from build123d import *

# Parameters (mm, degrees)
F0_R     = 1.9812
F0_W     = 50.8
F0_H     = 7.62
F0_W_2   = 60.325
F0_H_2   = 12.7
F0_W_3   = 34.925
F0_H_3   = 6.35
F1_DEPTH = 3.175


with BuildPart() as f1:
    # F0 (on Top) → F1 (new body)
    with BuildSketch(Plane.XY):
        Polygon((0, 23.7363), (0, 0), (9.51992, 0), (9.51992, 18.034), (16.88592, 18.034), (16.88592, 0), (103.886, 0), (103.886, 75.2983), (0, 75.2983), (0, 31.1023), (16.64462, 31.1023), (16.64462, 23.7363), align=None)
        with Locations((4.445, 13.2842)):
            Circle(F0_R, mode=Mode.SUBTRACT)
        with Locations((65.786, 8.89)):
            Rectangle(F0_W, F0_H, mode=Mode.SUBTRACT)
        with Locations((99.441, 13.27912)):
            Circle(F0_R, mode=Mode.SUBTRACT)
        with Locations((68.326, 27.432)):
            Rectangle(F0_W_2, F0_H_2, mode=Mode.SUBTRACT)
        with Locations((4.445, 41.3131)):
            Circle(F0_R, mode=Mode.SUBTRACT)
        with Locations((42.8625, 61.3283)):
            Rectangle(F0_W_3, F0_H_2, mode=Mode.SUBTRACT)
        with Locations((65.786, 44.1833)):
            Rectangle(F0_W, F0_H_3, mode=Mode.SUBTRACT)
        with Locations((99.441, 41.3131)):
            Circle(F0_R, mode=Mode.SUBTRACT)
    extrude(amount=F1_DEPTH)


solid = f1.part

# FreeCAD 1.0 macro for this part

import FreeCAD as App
import Part
import Sketcher
Q = App.Units.Quantity

doc = App.newDocument("Part")
body = doc.addObject("PartDesign::Body", "Body")

# Sketch on XY plane
sketch1 = body.newObject("Sketcher::SketchObject", "Sketch")
sketch1.AttachmentSupport = (doc.getObject("XY_Plane"), [""])
sketch1.MapMode = "FlatFace"
sketch1.addGeometry(Part.LineSegment(App.Vector(0, 23.7, 0), App.Vector(0, 0, 0)), False)
sketch1.addGeometry(Part.LineSegment(App.Vector(0, 0, 0), App.Vector(9.5, 0, 0)), False)
sketch1.addGeometry(Part.LineSegment(App.Vector(9.5, 0, 0), App.Vector(9.5, 18, 0)), False)
sketch1.addGeometry(Part.LineSegment(App.Vector(9.5, 18, 0), App.Vector(16.9, 18, 0)), False)
sketch1.addGeometry(Part.LineSegment(App.Vector(16.9, 18, 0), App.Vector(16.9, 0, 0)), False)
sketch1.addGeometry(Part.LineSegment(App.Vector(16.9, 0, 0), App.Vector(103.9, 0, 0)), False)
sketch1.addGeometry(Part.LineSegment(App.Vector(103.9, 0, 0), App.Vector(103.9, 75.3, 0)), False)
sketch1.addGeometry(Part.LineSegment(App.Vector(103.9, 75.3, 0), App.Vector(0, 75.3, 0)), False)
sketch1.addGeometry(Part.LineSegment(App.Vector(0, 75.3, 0), App.Vector(0, 31.1, 0)), False)
sketch1.addGeometry(Part.LineSegment(App.Vector(0, 31.1, 0), App.Vector(16.6, 31.1, 0)), False)
sketch1.addGeometry(Part.LineSegment(App.Vector(16.6, 31.1, 0), App.Vector(16.6, 23.7, 0)), False)
sketch1.addGeometry(Part.LineSegment(App.Vector(16.6, 23.7, 0), App.Vector(0, 23.7, 0)), False)
sketch1.addGeometry(Part.Circle(App.Vector(4.4, 13.3, 0), App.Vector(0, 0, 1), 2), False)
sketch1.addGeometry(Part.LineSegment(App.Vector(91.2, 5.1, 0), App.Vector(40.4, 5.1, 0)), False)
sketch1.addGeometry(Part.LineSegment(App.Vector(40.4, 5.1, 0), App.Vector(40.4, 12.7, 0)), False)
sketch1.addGeometry(Part.LineSegment(App.Vector(40.4, 12.7, 0), App.Vector(91.2, 12.7, 0)), False)
sketch1.addGeometry(Part.LineSegment(App.Vector(91.2, 12.7, 0), App.Vector(91.2, 5.1, 0)), False)
sketch1.addGeometry(Part.Circle(App.Vector(99.4, 13.3, 0), App.Vector(0, 0, 1), 2), False)
sketch1.addGeometry(Part.LineSegment(App.Vector(98.5, 21.1, 0), App.Vector(38.2, 21.1, 0)), False)
sketch1.addGeometry(Part.LineSegment(App.Vector(38.2, 21.1, 0), App.Vector(38.2, 33.8, 0)), False)
sketch1.addGeometry(Part.LineSegment(App.Vector(38.2, 33.8, 0), App.Vector(98.5, 33.8, 0)), False)
sketch1.addGeometry(Part.LineSegment(App.Vector(98.5, 33.8, 0), App.Vector(98.5, 21.1, 0)), False)
sketch1.addGeometry(Part.Circle(App.Vector(4.4, 41.3, 0), App.Vector(0, 0, 1), 2), False)
sketch1.addGeometry(Part.LineSegment(App.Vector(60.3, 55, 0), App.Vector(25.4, 55, 0)), False)
sketch1.addGeometry(Part.LineSegment(App.Vector(25.4, 55, 0), App.Vector(25.4, 67.7, 0)), False)
sketch1.addGeometry(Part.LineSegment(App.Vector(25.4, 67.7, 0), App.Vector(60.3, 67.7, 0)), False)
sketch1.addGeometry(Part.LineSegment(App.Vector(60.3, 67.7, 0), App.Vector(60.3, 55, 0)), False)
sketch1.addGeometry(Part.LineSegment(App.Vector(91.2, 41, 0), App.Vector(40.4, 41, 0)), False)
sketch1.addGeometry(Part.LineSegment(App.Vector(40.4, 41, 0), App.Vector(40.4, 47.4, 0)), False)
sketch1.addGeometry(Part.LineSegment(App.Vector(40.4, 47.4, 0), App.Vector(91.2, 47.4, 0)), False)
sketch1.addGeometry(Part.LineSegment(App.Vector(91.2, 47.4, 0), App.Vector(91.2, 41, 0)), False)
sketch1.addGeometry(Part.Circle(App.Vector(99.4, 41.3, 0), App.Vector(0, 0, 1), 2), False)
sketch1.addConstraint(Sketcher.Constraint("Coincident", 0, 2, 1, 1))
sketch1.addConstraint(Sketcher.Constraint("Coincident", 1, 2, 2, 1))
sketch1.addConstraint(Sketcher.Constraint("Coincident", 2, 2, 3, 1))
sketch1.addConstraint(Sketcher.Constraint("Coincident", 3, 2, 4, 1))
sketch1.addConstraint(Sketcher.Constraint("Coincident", 4, 2, 5, 1))
sketch1.addConstraint(Sketcher.Constraint("Coincident", 5, 2, 6, 1))
sketch1.addConstraint(Sketcher.Constraint("Coincident", 6, 2, 7, 1))
sketch1.addConstraint(Sketcher.Constraint("Coincident", 7, 2, 8, 1))
sketch1.addConstraint(Sketcher.Constraint("Coincident", 8, 2, 9, 1))
sketch1.addConstraint(Sketcher.Constraint("Coincident", 9, 2, 10, 1))
sketch1.addConstraint(Sketcher.Constraint("Coincident", 10, 2, 11, 1))
sketch1.addConstraint(Sketcher.Constraint("Coincident", 11, 2, 0, 1))
sketch1.addConstraint(Sketcher.Constraint("Coincident", 13, 2, 14, 1))
sketch1.addConstraint(Sketcher.Constraint("Coincident", 14, 2, 15, 1))
sketch1.addConstraint(Sketcher.Constraint("Coincident", 15, 2, 16, 1))
sketch1.addConstraint(Sketcher.Constraint("Coincident", 16, 2, 13, 1))
sketch1.addConstraint(Sketcher.Constraint("Coincident", 18, 2, 19, 1))
sketch1.addConstraint(Sketcher.Constraint("Coincident", 19, 2, 20, 1))
sketch1.addConstraint(Sketcher.Constraint("Coincident", 20, 2, 21, 1))
sketch1.addConstraint(Sketcher.Constraint("Coincident", 21, 2, 18, 1))
sketch1.addConstraint(Sketcher.Constraint("Coincident", 23, 2, 24, 1))
sketch1.addConstraint(Sketcher.Constraint("Coincident", 24, 2, 25, 1))
sketch1.addConstraint(Sketcher.Constraint("Coincident", 25, 2, 26, 1))
sketch1.addConstraint(Sketcher.Constraint("Coincident", 26, 2, 23, 1))
sketch1.addConstraint(Sketcher.Constraint("Coincident", 27, 2, 28, 1))
sketch1.addConstraint(Sketcher.Constraint("Coincident", 28, 2, 29, 1))
sketch1.addConstraint(Sketcher.Constraint("Coincident", 29, 2, 30, 1))
sketch1.addConstraint(Sketcher.Constraint("Coincident", 30, 2, 27, 1))
sketch1.addConstraint(Sketcher.Constraint("Vertical", 0))
sketch1.addConstraint(Sketcher.Constraint("Horizontal", 1))
sketch1.addConstraint(Sketcher.Constraint("Vertical", 2))
sketch1.addConstraint(Sketcher.Constraint("Horizontal", 3))
sketch1.addConstraint(Sketcher.Constraint("Vertical", 4))
sketch1.addConstraint(Sketcher.Constraint("Horizontal", 5))
sketch1.addConstraint(Sketcher.Constraint("Vertical", 6))
sketch1.addConstraint(Sketcher.Constraint("Horizontal", 7))
sketch1.addConstraint(Sketcher.Constraint("Vertical", 8))
sketch1.addConstraint(Sketcher.Constraint("Horizontal", 9))
sketch1.addConstraint(Sketcher.Constraint("Vertical", 10))
sketch1.addConstraint(Sketcher.Constraint("Horizontal", 11))
sketch1.addConstraint(Sketcher.Constraint("Horizontal", 13))
sketch1.addConstraint(Sketcher.Constraint("Vertical", 14))
sketch1.addConstraint(Sketcher.Constraint("Horizontal", 15))
sketch1.addConstraint(Sketcher.Constraint("Vertical", 16))
sketch1.addConstraint(Sketcher.Constraint("Horizontal", 18))
sketch1.addConstraint(Sketcher.Constraint("Vertical", 19))
sketch1.addConstraint(Sketcher.Constraint("Horizontal", 20))
sketch1.addConstraint(Sketcher.Constraint("Vertical", 21))
sketch1.addConstraint(Sketcher.Constraint("Horizontal", 23))
sketch1.addConstraint(Sketcher.Constraint("Vertical", 24))
sketch1.addConstraint(Sketcher.Constraint("Horizontal", 25))
sketch1.addConstraint(Sketcher.Constraint("Vertical", 26))
sketch1.addConstraint(Sketcher.Constraint("Horizontal", 27))
sketch1.addConstraint(Sketcher.Constraint("Vertical", 28))
sketch1.addConstraint(Sketcher.Constraint("Horizontal", 29))
sketch1.addConstraint(Sketcher.Constraint("Vertical", 30))
sketch1.addConstraint(Sketcher.Constraint("Coincident", 0, 2, -1, 1))
sketch1.addConstraint(Sketcher.Constraint("Equal", 12, 17))
sketch1.addConstraint(Sketcher.Constraint("Equal", 17, 22))
sketch1.addConstraint(Sketcher.Constraint("Equal", 22, 31))
sketch1.addConstraint(Sketcher.Constraint("PointOnObject", 4, 2, -1))
sketch1.addConstraint(Sketcher.Constraint("PointOnObject", 7, 2, -2))
sketch1.addConstraint(Sketcher.Constraint("Horizontal", 22, 3, 31, 3))
sketch1.addConstraint(Sketcher.Constraint("Vertical", 12, 3, 22, 3))
sketch1.addConstraint(Sketcher.Constraint("Vertical", 17, 3, 31, 3))
sketch1.addConstraint(Sketcher.Constraint("Vertical", 14, 2, 27, 2))
sketch1.addConstraint(Sketcher.Constraint("Vertical", 16, 2, 29, 2))
sketch1.addConstraint(Sketcher.Constraint("Equal", 3, 10))
sketch1.addConstraint(Sketcher.Constraint("Equal", 21, 24))
sketch1.addConstraint(Sketcher.Constraint("DistanceX", 13, 2, 13, 1, Q("2 in")))
sketch1.addConstraint(Sketcher.Constraint("Diameter", 12, Q("0.156 in")))
sketch1.addConstraint(Sketcher.Constraint("DistanceY", 14, 1, 14, 2, Q("0.3 in")))
sketch1.addConstraint(Sketcher.Constraint("DistanceY", 19, 1, 19, 2, Q("0.5 in")))
sketch1.addConstraint(Sketcher.Constraint("DistanceX", -1, 1, 23, 2, Q("1 in")))
sketch1.addConstraint(Sketcher.Constraint("DistanceX", 3, 1, 3, 2, Q("0.29 in")))
sketch1.addConstraint(Sketcher.Constraint("DistanceX", 7, 2, 7, 1, Q("4.09 in")))
sketch1.addConstraint(Sketcher.Constraint("DistanceY", 2, 1, 2, 2, Q("0.71 in")))
sketch1.addConstraint(Sketcher.Constraint("DistanceY", 8, 2, 8, 1, Q("1.74 in")))
sketch1.addConstraint(Sketcher.Constraint("DistanceY", 28, 1, 28, 2, Q("0.25 in")))
sketch1.addConstraint(Sketcher.Constraint("DistanceY", -1, 1, 13, 2, Q("0.2 in")))
sketch1.addConstraint(Sketcher.Constraint("DistanceX", 15, 2, 5, 2, Q("0.5 in")))
sketch1.addConstraint(Sketcher.Constraint("DistanceY", 23, 2, 7, 2, Q("0.8 in")))
sketch1.addConstraint(Sketcher.Constraint("DistanceY", 28, 2, 23, 2, Q("0.3 in")))
sketch1.addConstraint(Sketcher.Constraint("DistanceX", 18, 2, 18, 1, Q("2.375 in")))
sketch1.addConstraint(Sketcher.Constraint("DistanceX", 23, 2, 23, 1, Q("1.375 in")))
sketch1.addConstraint(Sketcher.Constraint("DistanceY", -1, 1, 18, 2, Q("0.83 in")))
sketch1.addConstraint(Sketcher.Constraint("DistanceX", 12, 3, 17, 3, Q("3.74 in")))
sketch1.addConstraint(Sketcher.Constraint("DistanceX", 25, 2, 31, 3, Q("1.54 in")))
sketch1.addConstraint(Sketcher.Constraint("DistanceX", 1, 1, 1, 2, Q("0.3748 in")))
sketch1.addConstraint(Sketcher.Constraint("DistanceX", 9, 1, 9, 2, Q("0.6553 in")))
sketch1.addConstraint(Sketcher.Constraint("DistanceY", 0, 2, 0, 1, Q("0.9345 in")))
sketch1.addConstraint(Sketcher.Constraint("DistanceY", -1, 1, 12, 3, Q("0.523 in")))
sketch1.addConstraint(Sketcher.Constraint("DistanceY", 31, 3, 6, 2, Q("1.338 in")))
sketch1.addConstraint(Sketcher.Constraint("DistanceY", -1, 1, 17, 3, Q("0.5228 in")))
sketch1.addConstraint(Sketcher.Constraint("DistanceX", -1, 1, 18, 2, Q("1.5025 in")))
pad1 = body.newObject("PartDesign::Pad", "Pad")
pad1.Profile = sketch1
pad1.Length = Q("0.125 in")

doc.recompute()
